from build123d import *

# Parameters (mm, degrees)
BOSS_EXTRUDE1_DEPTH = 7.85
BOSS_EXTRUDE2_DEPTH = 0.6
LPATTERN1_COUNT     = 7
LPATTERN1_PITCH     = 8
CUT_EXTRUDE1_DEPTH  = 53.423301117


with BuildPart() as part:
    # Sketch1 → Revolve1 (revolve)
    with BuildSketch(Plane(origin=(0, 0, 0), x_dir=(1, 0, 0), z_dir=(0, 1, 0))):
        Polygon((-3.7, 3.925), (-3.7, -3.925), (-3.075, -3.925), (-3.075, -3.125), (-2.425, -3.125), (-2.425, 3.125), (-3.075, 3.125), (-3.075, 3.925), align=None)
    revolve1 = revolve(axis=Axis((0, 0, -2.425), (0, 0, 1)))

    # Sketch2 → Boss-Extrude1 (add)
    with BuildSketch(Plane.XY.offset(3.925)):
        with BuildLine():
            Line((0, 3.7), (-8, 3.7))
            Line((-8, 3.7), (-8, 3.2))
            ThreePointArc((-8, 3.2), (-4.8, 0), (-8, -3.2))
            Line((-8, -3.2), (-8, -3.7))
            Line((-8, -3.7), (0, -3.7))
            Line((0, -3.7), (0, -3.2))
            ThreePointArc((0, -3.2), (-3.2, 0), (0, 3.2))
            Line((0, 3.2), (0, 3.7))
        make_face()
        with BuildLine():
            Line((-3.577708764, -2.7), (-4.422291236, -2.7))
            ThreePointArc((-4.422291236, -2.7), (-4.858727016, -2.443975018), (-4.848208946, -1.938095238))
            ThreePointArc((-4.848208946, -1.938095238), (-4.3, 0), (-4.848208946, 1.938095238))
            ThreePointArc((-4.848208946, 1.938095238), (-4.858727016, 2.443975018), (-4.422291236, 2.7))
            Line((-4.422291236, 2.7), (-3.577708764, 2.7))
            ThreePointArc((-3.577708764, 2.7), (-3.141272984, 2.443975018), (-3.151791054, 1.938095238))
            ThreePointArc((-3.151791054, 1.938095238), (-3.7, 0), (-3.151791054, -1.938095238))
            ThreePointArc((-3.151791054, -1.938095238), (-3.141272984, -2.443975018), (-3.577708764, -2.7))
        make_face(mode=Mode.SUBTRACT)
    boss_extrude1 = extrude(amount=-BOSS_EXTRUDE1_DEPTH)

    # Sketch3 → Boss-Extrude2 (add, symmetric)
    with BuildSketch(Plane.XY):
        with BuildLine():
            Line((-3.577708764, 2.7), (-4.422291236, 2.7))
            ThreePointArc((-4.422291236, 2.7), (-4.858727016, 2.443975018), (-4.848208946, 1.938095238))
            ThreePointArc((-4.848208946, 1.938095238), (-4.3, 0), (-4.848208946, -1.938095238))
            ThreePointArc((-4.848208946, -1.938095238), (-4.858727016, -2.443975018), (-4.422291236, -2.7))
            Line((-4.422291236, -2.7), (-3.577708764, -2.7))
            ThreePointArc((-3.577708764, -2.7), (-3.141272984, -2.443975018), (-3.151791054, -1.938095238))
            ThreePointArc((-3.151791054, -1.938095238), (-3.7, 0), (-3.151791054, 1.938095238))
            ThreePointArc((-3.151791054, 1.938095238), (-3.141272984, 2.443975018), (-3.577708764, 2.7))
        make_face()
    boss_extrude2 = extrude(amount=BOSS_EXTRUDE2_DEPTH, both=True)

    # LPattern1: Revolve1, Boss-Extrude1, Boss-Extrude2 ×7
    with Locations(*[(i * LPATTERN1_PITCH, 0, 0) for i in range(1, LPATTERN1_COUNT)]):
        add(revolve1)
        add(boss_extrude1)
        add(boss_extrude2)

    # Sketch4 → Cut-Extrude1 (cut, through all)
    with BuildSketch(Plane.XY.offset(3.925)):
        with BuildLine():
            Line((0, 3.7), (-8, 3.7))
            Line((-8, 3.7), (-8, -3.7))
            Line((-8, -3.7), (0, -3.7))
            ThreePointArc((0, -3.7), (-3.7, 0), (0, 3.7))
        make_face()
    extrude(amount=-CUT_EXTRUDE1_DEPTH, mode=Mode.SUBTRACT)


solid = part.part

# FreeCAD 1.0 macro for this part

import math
import FreeCAD as App
import Part
import Sketcher
Q = App.Units.Quantity

doc = App.newDocument("Part")
body = doc.addObject("PartDesign::Body", "Body")

# Sketch on XZ plane
sketch1 = doc.addObject("Sketcher::SketchObject", "Sketch")
body.addObject(sketch1)
sketch1.AttachmentSupport = (doc.XZ_Plane, [""])
sketch1.MapMode = "FlatFace"
sketch1.addGeometry([
    Part.LineSegment(App.Vector(-3.7, -3.9, 0), App.Vector(-3.7, 3.9, 0)),  # 0
    Part.LineSegment(App.Vector(-3.7, 3.9, 0), App.Vector(-3.1, 3.9, 0)),  # 1
    Part.LineSegment(App.Vector(-3.1, 3.9, 0), App.Vector(-3.1, 3.1, 0)),  # 2
    Part.LineSegment(App.Vector(-3.1, 3.1, 0), App.Vector(-2.4, 3.1, 0)),  # 3
    Part.LineSegment(App.Vector(-2.4, 3.1, 0), App.Vector(-2.4, -3.1, 0)),  # 4
    Part.LineSegment(App.Vector(-2.4, -3.1, 0), App.Vector(-3.1, -3.1, 0)),  # 5
    Part.LineSegment(App.Vector(-3.1, -3.1, 0), App.Vector(-3.1, -3.9, 0)),  # 6
    Part.LineSegment(App.Vector(-3.1, -3.9, 0), App.Vector(-3.7, -3.9, 0)),  # 7
], False)
sketch1.addConstraint([
    Sketcher.Constraint("Coincident", 0, 2, 1, 1),
    Sketcher.Constraint("Coincident", 1, 2, 2, 1),
    Sketcher.Constraint("Coincident", 2, 2, 3, 1),
    Sketcher.Constraint("Coincident", 3, 2, 4, 1),
    Sketcher.Constraint("Coincident", 4, 2, 5, 1),
    Sketcher.Constraint("Coincident", 5, 2, 6, 1),
    Sketcher.Constraint("Coincident", 6, 2, 7, 1),
    Sketcher.Constraint("Coincident", 7, 2, 0, 1),
    Sketcher.Constraint("Vertical", 0),
    Sketcher.Constraint("Horizontal", 1),
    Sketcher.Constraint("Vertical", 2),
    Sketcher.Constraint("Horizontal", 3),
    Sketcher.Constraint("Vertical", 4),
    Sketcher.Constraint("Horizontal", 5),
    Sketcher.Constraint("Vertical", 6),
    Sketcher.Constraint("Horizontal", 7),
    Sketcher.Constraint("Symmetric", 2, 2, 5, 2, -1),
    Sketcher.Constraint("Equal", 2, 6),
    Sketcher.Constraint("DistanceY", 2, 2, 2, 1, Q("0.8 mm")),
    Sketcher.Constraint("DistanceX", 3, 1, 3, 2, Q("0.65 mm")),
    Sketcher.Constraint("DistanceY", 0, 1, 0, 2, Q("7.85 mm")),
    Sketcher.Constraint("DistanceX", 0, 2, -1, 1, Q("3.7 mm")),
    Sketcher.Constraint("DistanceX", 1, 1, 1, 2, Q("0.625 mm")),
])
revolution = doc.addObject("PartDesign::Revolution", "Revolution")
body.addObject(revolution)
revolution.Profile = sketch1
revolution.ReferenceAxis = (sketch1, ["V_Axis"])
revolution.Angle = 360

# Sketch on XY plane
sketch2 = doc.addObject("Sketcher::SketchObject", "Sketch001")
body.addObject(sketch2)
sketch2.AttachmentSupport = (doc.XY_Plane, [""])
sketch2.MapMode = "FlatFace"
sketch2.AttachmentOffset = App.Placement(App.Vector(0, 0, 3.925), App.Rotation())
sketch2.addGeometry([
    Part.LineSegment(App.Vector(0, 3.7, 0), App.Vector(-8, 3.7, 0)),  # 0
    Part.LineSegment(App.Vector(-8, 3.7, 0), App.Vector(-8, 3.2, 0)),  # 1
    Part.ArcOfCircle(Part.Circle(App.Vector(-8, 0, 0), App.Vector(0, 0, 1), 3.2), math.radians(-90), math.radians(90)),  # 2
    Part.LineSegment(App.Vector(-8, -3.2, 0), App.Vector(-8, -3.7, 0)),  # 3
    Part.LineSegment(App.Vector(-8, -3.7, 0), App.Vector(0, -3.7, 0)),  # 4
    Part.LineSegment(App.Vector(0, -3.7, 0), App.Vector(0, -3.2, 0)),  # 5
    Part.ArcOfCircle(Part.Circle(App.Vector(0, 0, 0), App.Vector(0, 0, 1), 3.2), math.radians(90), math.radians(270)),  # 6
    Part.LineSegment(App.Vector(0, 3.2, 0), App.Vector(0, 3.7, 0)),  # 7
    Part.ArcOfCircle(Part.Circle(App.Vector(-3.6, -2.2, 0), App.Vector(0, 0, 1), 0.5), math.radians(-90), math.radians(32)),  # 8
    Part.LineSegment(App.Vector(-3.6, -2.7, 0), App.Vector(-4.4, -2.7, 0)),  # 9
    Part.ArcOfCircle(Part.Circle(App.Vector(-4.4, -2.2, 0), App.Vector(0, 0, 1), 0.5), math.radians(148), math.radians(270)),  # 10
    Part.ArcOfCircle(Part.Circle(App.Vector(-8, 0, 0), App.Vector(0, 0, 1), 3.7), math.radians(-32), math.radians(32)),  # 11
    Part.ArcOfCircle(Part.Circle(App.Vector(-4.4, 2.2, 0), App.Vector(0, 0, 1), 0.5), math.radians(90), math.radians(212)),  # 12
    Part.LineSegment(App.Vector(-4.4, 2.7, 0), App.Vector(-3.6, 2.7, 0)),  # 13
    Part.ArcOfCircle(Part.Circle(App.Vector(-3.6, 2.2, 0), App.Vector(0, 0, 1), 0.5), math.radians(-32), math.radians(90)),  # 14
    Part.ArcOfCircle(Part.Circle(App.Vector(0, 0, 0), App.Vector(0, 0, 1), 3.7), math.radians(148), math.radians(212)),  # 15
], False)
sketch2.addConstraint([
    Sketcher.Constraint("Coincident", 0, 2, 1, 1),
    Sketcher.Constraint("Coincident", 1, 2, 2, 2),
    Sketcher.Constraint("Coincident", 2, 1, 3, 1),
    Sketcher.Constraint("Coincident", 3, 2, 4, 1),
    Sketcher.Constraint("Coincident", 4, 2, 5, 1),
    Sketcher.Constraint("Coincident", 5, 2, 6, 2),
    Sketcher.Constraint("Coincident", 6, 1, 7, 1),
    Sketcher.Constraint("Coincident", 7, 2, 0, 1),
    Sketcher.Constraint("Tangent", 8, 1, 9, 1),
    Sketcher.Constraint("Tangent", 9, 2, 10, 2),
    Sketcher.Constraint("Tangent", 10, 1, 11, 1),
    Sketcher.Constraint("Tangent", 11, 2, 12, 2),
    Sketcher.Constraint("Tangent", 12, 1, 13, 1),
    Sketcher.Constraint("Tangent", 13, 2, 14, 2),
    Sketcher.Constraint("Tangent", 14, 1, 15, 1),
    Sketcher.Constraint("Tangent", 15, 2, 8, 2),
    Sketcher.Constraint("Horizontal", 0),
    Sketcher.Constraint("Vertical", 1),
    Sketcher.Constraint("Vertical", 3),
    Sketcher.Constraint("Horizontal", 4),
    Sketcher.Constraint("Vertical", 5),
    Sketcher.Constraint("Vertical", 7),
    Sketcher.Constraint("Horizontal", 9),
    Sketcher.Constraint("Horizontal", 13),
    Sketcher.Constraint("Coincident", 6, 3, -1, 1),
    Sketcher.Constraint("Coincident", 15, 3, -1, 1),
    Sketcher.Constraint("Coincident", 11, 3, 2, 3),
    Sketcher.Constraint("Equal", 2, 6),
    Sketcher.Constraint("Equal", 8, 10),
    Sketcher.Constraint("Equal", 10, 12),
    Sketcher.Constraint("Equal", 12, 14),
    Sketcher.Constraint("Equal", 11, 15),
    Sketcher.Constraint("Symmetric", 4, 2, 7, 2, -1, 1),
    Sketcher.Constraint("Symmetric", 10, 3, 12, 3, -1),
    Sketcher.Constraint("PointOnObject", 4, 2, -2),
    Sketcher.Constraint("Vertical", 11, 3, 0, 2),
    Sketcher.Constraint("Vertical", 1, 2, 2, 1),
    Sketcher.Constraint("Radius", 2, Q("3.2 mm")),
    Sketcher.Constraint("Radius", 8, Q("0.5 mm")),
    Sketcher.Constraint("Radius", 11, Q("3.7 mm")),
    Sketcher.Constraint("DistanceX", 0, 2, 0, 1, Q("8 mm")),
    Sketcher.Constraint("DistanceY", 1, 2, 1, 1, Q("0.5 mm")),
    Sketcher.Constraint("DistanceY", 12, 3, 1, 2, Q("1 mm")),
])
pad1 = doc.addObject("PartDesign::Pad", "Pad")
body.addObject(pad1)
pad1.Profile = sketch2
pad1.Length = 7.85
pad1.Reversed = True

# Sketch on XY plane
sketch3 = doc.addObject("Sketcher::SketchObject", "Sketch002")
body.addObject(sketch3)
sketch3.AttachmentSupport = (doc.XY_Plane, [""])
sketch3.MapMode = "FlatFace"
sketch3.addGeometry([
    Part.LineSegment(App.Vector(-3.6, 2.7, 0), App.Vector(-4.4, 2.7, 0)),  # 0
    Part.ArcOfCircle(Part.Circle(App.Vector(-4.4, 2.2, 0), App.Vector(0, 0, 1), 0.5), math.radians(90), math.radians(212)),  # 1
    Part.ArcOfCircle(Part.Circle(App.Vector(-8, 0, 0), App.Vector(0, 0, 1), 3.7), math.radians(-32), math.radians(32)),  # 2
    Part.ArcOfCircle(Part.Circle(App.Vector(-4.4, -2.2, 0), App.Vector(0, 0, 1), 0.5), math.radians(148), math.radians(270)),  # 3
    Part.LineSegment(App.Vector(-4.4, -2.7, 0), App.Vector(-3.6, -2.7, 0)),  # 4
    Part.ArcOfCircle(Part.Circle(App.Vector(-3.6, -2.2, 0), App.Vector(0, 0, 1), 0.5), math.radians(-90), math.radians(32)),  # 5
    Part.ArcOfCircle(Part.Circle(App.Vector(0, 0, 0), App.Vector(0, 0, 1), 3.7), math.radians(148), math.radians(212)),  # 6
    Part.ArcOfCircle(Part.Circle(App.Vector(-3.6, 2.2, 0), App.Vector(0, 0, 1), 0.5), math.radians(-32), math.radians(90)),  # 7
], False)
sketch3.addConstraint([
    Sketcher.Constraint("Tangent", 0, 2, 1, 1),
    Sketcher.Constraint("Tangent", 1, 2, 2, 2),
    Sketcher.Constraint("Tangent", 2, 1, 3, 1),
    Sketcher.Constraint("Tangent", 3, 2, 4, 1),
    Sketcher.Constraint("Tangent", 4, 2, 5, 1),
    Sketcher.Constraint("Tangent", 5, 2, 6, 2),
    Sketcher.Constraint("Tangent", 6, 1, 7, 1),
    Sketcher.Constraint("Tangent", 7, 2, 0, 1),
    Sketcher.Constraint("Horizontal", 0),
    Sketcher.Constraint("Horizontal", 4),
    Sketcher.Constraint("Coincident", 6, 3, -1, 1),
    Sketcher.Constraint("Equal", 1, 3),
    Sketcher.Constraint("Equal", 3, 5),
    Sketcher.Constraint("Equal", 2, 6),
    Sketcher.Constraint("Equal", 5, 7),
    Sketcher.Constraint("Symmetric", 1, 3, 3, 3, -1),
    Sketcher.Constraint("Radius", 1, Q("0.5 mm")),
    Sketcher.Constraint("Radius", 2, Q("3.7 mm")),
    Sketcher.Constraint("DistanceX", 2, 3, -1, 1, Q("8 mm")),
    Sketcher.Constraint("DistanceY", -1, 1, 1, 3, Q("2.2 mm")),
])
pad2 = doc.addObject("PartDesign::Pad", "Pad001")
body.addObject(pad2)
pad2.Profile = sketch3
pad2.Length = 1.2
pad2.Midplane = True
doc.recompute()

linearpattern = doc.addObject("PartDesign::LinearPattern", "LinearPattern")
body.addObject(linearpattern)
linearpattern.Originals = [revolution, pad1, pad2]
linearpattern.Direction = (doc.X_Axis, [""])
linearpattern.Mode = "offset"
linearpattern.Offset = 8
linearpattern.Occurrences = 7
body.Tip = linearpattern

# Sketch on XY plane
sketch4 = doc.addObject("Sketcher::SketchObject", "Sketch003")
body.addObject(sketch4)
sketch4.AttachmentSupport = (doc.XY_Plane, [""])
sketch4.MapMode = "FlatFace"
sketch4.AttachmentOffset = App.Placement(App.Vector(0, 0, 3.925), App.Rotation())
sketch4.addGeometry([
    Part.LineSegment(App.Vector(0, 3.7, 0), App.Vector(-8, 3.7, 0)),
    Part.LineSegment(App.Vector(-8, 3.7, 0), App.Vector(-8, -3.7, 0)),
    Part.LineSegment(App.Vector(-8, -3.7, 0), App.Vector(0, -3.7, 0)),
    Part.ArcOfCircle(Part.Circle(App.Vector(0, 0, 0), App.Vector(0, 0, 1), 3.7), math.radians(90), math.radians(270)),
], False)
sketch4.addConstraint([
    Sketcher.Constraint("Coincident", 0, 2, 1, 1),
    Sketcher.Constraint("Coincident", 1, 2, 2, 1),
    Sketcher.Constraint("Tangent", 2, 2, 3, 2),
    Sketcher.Constraint("Tangent", 3, 1, 0, 1),
    Sketcher.Constraint("Horizontal", 0),
    Sketcher.Constraint("Vertical", 1),
    Sketcher.Constraint("Horizontal", 2),
    Sketcher.Constraint("Coincident", 3, 3, -1, 1),
    Sketcher.Constraint("Radius", 3, Q("3.7 mm")),
    Sketcher.Constraint("DistanceX", 0, 2, 0, 1, Q("8 mm")),
])
pocket1 = doc.addObject("PartDesign::Pocket", "Pocket")
body.addObject(pocket1)
pocket1.Profile = sketch4
pocket1.Type = "ThroughAll"

doc.recompute()
